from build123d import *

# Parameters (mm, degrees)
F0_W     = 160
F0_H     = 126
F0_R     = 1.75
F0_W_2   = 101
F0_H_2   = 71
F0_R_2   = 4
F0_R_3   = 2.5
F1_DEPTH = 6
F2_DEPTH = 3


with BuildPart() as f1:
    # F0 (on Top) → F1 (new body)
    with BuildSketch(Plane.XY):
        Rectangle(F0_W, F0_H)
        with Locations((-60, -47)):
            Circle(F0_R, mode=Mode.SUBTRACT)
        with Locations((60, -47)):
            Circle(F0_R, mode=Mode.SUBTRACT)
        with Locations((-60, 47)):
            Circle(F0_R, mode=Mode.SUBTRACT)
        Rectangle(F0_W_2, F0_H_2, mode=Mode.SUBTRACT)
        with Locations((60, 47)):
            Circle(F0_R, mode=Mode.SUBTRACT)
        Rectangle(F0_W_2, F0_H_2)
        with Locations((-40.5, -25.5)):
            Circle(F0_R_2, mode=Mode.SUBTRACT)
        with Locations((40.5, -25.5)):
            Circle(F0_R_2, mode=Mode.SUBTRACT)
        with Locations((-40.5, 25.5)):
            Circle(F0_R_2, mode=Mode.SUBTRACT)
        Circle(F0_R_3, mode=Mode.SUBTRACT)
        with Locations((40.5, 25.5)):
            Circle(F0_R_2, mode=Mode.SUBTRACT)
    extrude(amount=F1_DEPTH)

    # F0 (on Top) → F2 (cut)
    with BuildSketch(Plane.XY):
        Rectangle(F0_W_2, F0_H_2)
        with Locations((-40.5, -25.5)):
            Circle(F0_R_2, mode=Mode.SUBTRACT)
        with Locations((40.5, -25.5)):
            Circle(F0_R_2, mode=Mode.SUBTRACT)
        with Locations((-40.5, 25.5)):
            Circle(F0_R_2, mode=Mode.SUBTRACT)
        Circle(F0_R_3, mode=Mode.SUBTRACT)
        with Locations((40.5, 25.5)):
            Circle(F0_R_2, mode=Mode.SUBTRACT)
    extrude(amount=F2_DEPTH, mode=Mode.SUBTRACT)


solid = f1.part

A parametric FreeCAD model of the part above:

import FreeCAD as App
import Part
import Sketcher
Q = App.Units.Quantity


def add_polygon(sketch, points):
    """Adds a closed chain of lines whose ends are joined by coincident constraints."""
    first, n = sketch.GeometryCount, len(points)
    for a, b in zip(points, points[1:] + points[:1]):
        sketch.addGeometry(Part.LineSegment(App.Vector(*a, 0), App.Vector(*b, 0)), False)
    for i in range(n):
        sketch.addConstraint(Sketcher.Constraint("Coincident", first + i, 2, first + (i + 1) % n, 1))

doc = App.newDocument("Part")
body = doc.addObject("PartDesign::Body", "Body")

# Sketch on XY plane
sketch1 = body.newObject("Sketcher::SketchObject", "Sketch")
sketch1.AttachmentSupport = (doc.getObject("XY_Plane"), [""])
sketch1.MapMode = "FlatFace"
add_polygon(sketch1, [(-80, 63), (-80, -63), (80, -63), (80, 63)])  # lines 0-3
sketch1.addGeometry(Part.Circle(App.Vector(-60, -47, 0), App.Vector(0, 0, 1), 1.8), False)  # 4
sketch1.addGeometry(Part.Circle(App.Vector(-40.5, -25.5, 0), App.Vector(0, 0, 1), 4), False)  # 5
sketch1.addGeometry(Part.Circle(App.Vector(60, -47, 0), App.Vector(0, 0, 1), 1.8), False)  # 6
sketch1.addGeometry(Part.Circle(App.Vector(40.5, -25.5, 0), App.Vector(0, 0, 1), 4), False)  # 7
sketch1.addGeometry(Part.Circle(App.Vector(-40.5, 25.5, 0), App.Vector(0, 0, 1), 4), False)  # 8
sketch1.addGeometry(Part.Circle(App.Vector(-60, 47, 0), App.Vector(0, 0, 1), 1.8), False)  # 9
sketch1.addGeometry(Part.Circle(App.Vector(0, 0, 0), App.Vector(0, 0, 1), 2.5), False)  # 10
sketch1.addGeometry(Part.Circle(App.Vector(40.5, 25.5, 0), App.Vector(0, 0, 1), 4), False)  # 11
sketch1.addGeometry(Part.Circle(App.Vector(60, 47, 0), App.Vector(0, 0, 1), 1.8), False)  # 12
sketch1.addConstraint([
    Sketcher.Constraint("Vertical", 0),
    Sketcher.Constraint("Horizontal", 1),
    Sketcher.Constraint("Vertical", 2),
    Sketcher.Constraint("Horizontal", 3),
    Sketcher.Constraint("Coincident", 10, 3, -1, 1),
    Sketcher.Constraint("Equal", 4, 6),
    Sketcher.Constraint("Equal", 5, 7),
    Sketcher.Constraint("Equal", 7, 8),
    Sketcher.Constraint("Equal", 6, 9),
    Sketcher.Constraint("Equal", 8, 11),
    Sketcher.Constraint("Equal", 9, 12),
    Sketcher.Constraint("Symmetric", 7, 3, 8, 3, -1, 1),
    Sketcher.Constraint("Symmetric", 6, 3, 9, 3, -1, 1),
    Sketcher.Constraint("Symmetric", 5, 3, 11, 3, -1, 1),
    Sketcher.Constraint("Symmetric", 4, 3, 12, 3, -1, 1),
    Sketcher.Constraint("Symmetric", 0, 2, 2, 2, -1, 1),
    Sketcher.Constraint("Symmetric", 4, 3, 6, 3, -2),
    Sketcher.Constraint("Symmetric", 5, 3, 7, 3, -2),
    Sketcher.Constraint("Diameter", 5, Q("8 mm")),
    Sketcher.Constraint("Diameter", 10, Q("5 mm")),
    Sketcher.Constraint("Diameter", 4, Q("3.5 mm")),
    Sketcher.Constraint("DistanceX", 1, 1, 1, 2, Q("160 mm")),
    Sketcher.Constraint("DistanceY", 0, 2, 0, 1, Q("126 mm")),
    Sketcher.Constraint("DistanceX", 4, 3, -1, 1, Q("60 mm")),
    Sketcher.Constraint("DistanceY", 4, 3, -1, 1, Q("47 mm")),
    Sketcher.Constraint("DistanceX", 5, 3, 7, 3, Q("81 mm")),
    Sketcher.Constraint("DistanceY", 5, 3, 8, 3, Q("51 mm")),
])
pad1 = body.newObject("PartDesign::Pad", "Pad")
pad1.Profile = sketch1
pad1.Length = 6

# Sketch on XY plane
sketch2 = body.newObject("Sketcher::SketchObject", "Sketch001")
sketch2.AttachmentSupport = (doc.getObject("XY_Plane"), [""])
sketch2.MapMode = "FlatFace"
add_polygon(sketch2, [(-50.5, 35.5), (-50.5, -35.5), (50.5, -35.5), (50.5, 35.5)])  # lines 0-3
sketch2.addGeometry(Part.Circle(App.Vector(-40.5, -25.5, 0), App.Vector(0, 0, 1), 4), False)  # 4
sketch2.addGeometry(Part.Circle(App.Vector(40.5, -25.5, 0), App.Vector(0, 0, 1), 4), False)  # 5
sketch2.addGeometry(Part.Circle(App.Vector(-40.5, 25.5, 0), App.Vector(0, 0, 1), 4), False)  # 6
sketch2.addGeometry(Part.Circle(App.Vector(0, 0, 0), App.Vector(0, 0, 1), 2.5), False)  # 7
sketch2.addGeometry(Part.Circle(App.Vector(40.5, 25.5, 0), App.Vector(0, 0, 1), 4), False)  # 8
sketch2.addConstraint([
    Sketcher.Constraint("Vertical", 0),
    Sketcher.Constraint("Horizontal", 1),
    Sketcher.Constraint("Vertical", 2),
    Sketcher.Constraint("Horizontal", 3),
    Sketcher.Constraint("Coincident", 7, 3, -1, 1),
    Sketcher.Constraint("Equal", 4, 5),
    Sketcher.Constraint("Equal", 5, 6),
    Sketcher.Constraint("Equal", 6, 8),
    Sketcher.Constraint("Symmetric", 5, 3, 6, 3, -1, 1),
    Sketcher.Constraint("Symmetric", 4, 3, 8, 3, -1, 1),
    Sketcher.Constraint("Symmetric", 0, 2, 2, 2, -1, 1),
    Sketcher.Constraint("Symmetric", 4, 3, 5, 3, -2),
    Sketcher.Constraint("Diameter", 4, Q("8 mm")),
    Sketcher.Constraint("Diameter", 7, Q("5 mm")),
    Sketcher.Constraint("DistanceX", 1, 1, 1, 2, Q("101 mm")),
    Sketcher.Constraint("DistanceY", 0, 2, 0, 1, Q("71 mm")),
    Sketcher.Constraint("DistanceX", 4, 3, 5, 3, Q("81 mm")),
    Sketcher.Constraint("DistanceY", 4, 3, 6, 3, Q("51 mm")),
])
pocket1 = body.newObject("PartDesign::Pocket", "Pocket")
pocket1.Profile = sketch2
pocket1.Length = 3
pocket1.Reversed = True

doc.recompute()
